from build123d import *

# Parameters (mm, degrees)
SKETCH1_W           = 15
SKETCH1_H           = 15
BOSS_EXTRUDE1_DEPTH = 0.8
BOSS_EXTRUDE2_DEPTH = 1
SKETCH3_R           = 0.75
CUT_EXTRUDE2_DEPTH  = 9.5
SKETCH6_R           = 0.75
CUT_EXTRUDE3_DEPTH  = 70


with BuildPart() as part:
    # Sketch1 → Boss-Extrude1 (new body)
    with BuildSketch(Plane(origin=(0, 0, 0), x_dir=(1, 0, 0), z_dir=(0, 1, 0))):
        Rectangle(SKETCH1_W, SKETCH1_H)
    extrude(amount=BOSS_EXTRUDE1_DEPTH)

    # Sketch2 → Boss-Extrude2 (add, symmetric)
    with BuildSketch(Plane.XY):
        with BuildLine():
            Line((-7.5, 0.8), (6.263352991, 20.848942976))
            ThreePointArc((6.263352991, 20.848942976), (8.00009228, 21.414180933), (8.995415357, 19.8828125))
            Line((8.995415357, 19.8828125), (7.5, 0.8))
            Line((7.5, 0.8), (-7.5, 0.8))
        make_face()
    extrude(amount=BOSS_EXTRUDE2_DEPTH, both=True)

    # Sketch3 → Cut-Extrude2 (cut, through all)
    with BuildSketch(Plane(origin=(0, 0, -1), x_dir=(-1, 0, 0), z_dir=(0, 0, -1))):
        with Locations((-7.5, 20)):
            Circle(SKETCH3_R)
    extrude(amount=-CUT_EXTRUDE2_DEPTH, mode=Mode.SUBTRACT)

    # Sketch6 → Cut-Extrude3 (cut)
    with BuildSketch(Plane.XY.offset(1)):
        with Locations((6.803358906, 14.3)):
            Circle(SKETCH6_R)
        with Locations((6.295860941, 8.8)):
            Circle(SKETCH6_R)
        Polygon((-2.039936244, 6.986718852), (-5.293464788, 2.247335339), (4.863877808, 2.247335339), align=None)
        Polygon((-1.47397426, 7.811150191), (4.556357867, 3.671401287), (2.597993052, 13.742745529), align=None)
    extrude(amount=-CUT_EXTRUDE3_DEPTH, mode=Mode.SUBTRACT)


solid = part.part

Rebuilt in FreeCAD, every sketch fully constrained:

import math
import FreeCAD as App
import Part
import Sketcher
from FreeCAD import Vector

doc = App.newDocument("Part")
body = doc.addObject("PartDesign::Body", "Body")

# Sketch on XZ plane
sketch1 = doc.addObject("Sketcher::SketchObject", "Sketch")
body.addObject(sketch1)
sketch1.AttachmentSupport = (doc.XZ_Plane, [""])
sketch1.MapMode = "FlatFace"
sketch1.addGeometry([
    Part.LineSegment(Vector(-8, -8, 0), Vector(-8, 8, 0)),
    Part.LineSegment(Vector(-8, 8, 0), Vector(8, 8, 0)),
    Part.LineSegment(Vector(8, 8, 0), Vector(8, -8, 0)),
    Part.LineSegment(Vector(8, -8, 0), Vector(-8, -8, 0)),
], False)
sketch1.addConstraint([
    Sketcher.Constraint("Coincident", 0, 2, 1, 1),
    Sketcher.Constraint("Coincident", 1, 2, 2, 1),
    Sketcher.Constraint("Coincident", 2, 2, 3, 1),
    Sketcher.Constraint("Coincident", 3, 2, 0, 1),
    Sketcher.Constraint("Vertical", 0),
    Sketcher.Constraint("Horizontal", 1),
    Sketcher.Constraint("Vertical", 2),
    Sketcher.Constraint("Horizontal", 3),
    Sketcher.Constraint("Symmetric", 0, 2, 2, 2, -1, 1),
    Sketcher.Constraint("Equal", 3, 0),
    Sketcher.Constraint("DistanceX", 1, 1, 1, 2, 15.0),
])
pad1 = doc.addObject("PartDesign::Pad", "Pad")
body.addObject(pad1)
pad1.Profile = sketch1
pad1.Length = 0.8
pad1.Reversed = True

# Sketch on XY plane
sketch2 = doc.addObject("Sketcher::SketchObject", "Sketch001")
body.addObject(sketch2)
sketch2.AttachmentSupport = (doc.XY_Plane, [""])
sketch2.MapMode = "FlatFace"
sketch2.addGeometry([
    Part.LineSegment(Vector(6.3, 20.8, 0), Vector(-7.5, 0.8, 0)),
    Part.LineSegment(Vector(-7.5, 0.8, 0), Vector(7.5, 0.8, 0)),
    Part.LineSegment(Vector(7.5, 0.8, 0), Vector(9, 19.9, 0)),
    Part.ArcOfCircle(Part.Circle(Vector(7.5, 20, 0), Vector(0, 0, 1), 1.5), math.radians(-4), math.radians(146)),
], False)
sketch2.addConstraint([
    Sketcher.Constraint("Coincident", 0, 2, 1, 1),
    Sketcher.Constraint("Coincident", 1, 2, 2, 1),
    Sketcher.Constraint("Tangent", 2, 2, 3, 1),
    Sketcher.Constraint("Tangent", 3, 2, 0, 1),
    Sketcher.Constraint("Horizontal", 1),
    Sketcher.Constraint("Vertical", 3, 3, 1, 2),
    Sketcher.Constraint("Radius", 3, 1.5),
    Sketcher.Constraint("DistanceX", 1, 1, 1, 2, 15.0),
    Sketcher.Constraint("DistanceY", -1, 1, 3, 3, 20.0),
    Sketcher.Constraint("DistanceX", -1, 1, 3, 3, 7.5),
    Sketcher.Constraint("DistanceY", -1, 1, 0, 2, 0.8),
])
pad2 = doc.addObject("PartDesign::Pad", "Pad001")
body.addObject(pad2)
pad2.Profile = sketch2
pad2.Length = 2
pad2.Midplane = True

# Sketch on XY plane
sketch3 = doc.addObject("Sketcher::SketchObject", "Sketch002")
body.addObject(sketch3)
sketch3.AttachmentSupport = (doc.XY_Plane, [""])
sketch3.MapMode = "FlatFace"
sketch3.AttachmentOffset = App.Placement(Vector(0, 0, -1), App.Rotation())
sketch3.addGeometry(Part.Circle(Vector(7.5, 20, 0), Vector(0, 0, 1), 0.8), False)
sketch3.addConstraint([
    Sketcher.Constraint("Diameter", 0, 1.5),
    Sketcher.Constraint("DistanceY", -1, 1, 0, 3, 20.0),
    Sketcher.Constraint("DistanceX", -1, 1, 0, 3, 7.5),
])
pocket1 = doc.addObject("PartDesign::Pocket", "Pocket")
body.addObject(pocket1)
pocket1.Profile = sketch3
pocket1.Type = "ThroughAll"
pocket1.Reversed = True

# Sketch on XY plane
sketch4 = doc.addObject("Sketcher::SketchObject", "Sketch003")
body.addObject(sketch4)
sketch4.AttachmentSupport = (doc.XY_Plane, [""])
sketch4.MapMode = "FlatFace"
sketch4.AttachmentOffset = App.Placement(Vector(0, 0, 1), App.Rotation())
sketch4.addGeometry([
    Part.Circle(Vector(6.8, 14.3, 0), Vector(0, 0, 1), 0.8),  # 0
    Part.Circle(Vector(6.3, 8.8, 0), Vector(0, 0, 1), 0.8),  # 1
    Part.LineSegment(Vector(-2, 7, 0), Vector(-5.3, 2.2, 0)),  # 2
    Part.LineSegment(Vector(-5.3, 2.2, 0), Vector(4.9, 2.2, 0)),  # 3
    Part.LineSegment(Vector(4.9, 2.2, 0), Vector(-2, 7, 0)),  # 4
    Part.LineSegment(Vector(-1.5, 7.8, 0), Vector(4.6, 3.7, 0)),  # 5
    Part.LineSegment(Vector(4.6, 3.7, 0), Vector(2.6, 13.7, 0)),  # 6
    Part.LineSegment(Vector(2.6, 13.7, 0), Vector(-1.5, 7.8, 0)),  # 7
], False)
sketch4.addConstraint([
    Sketcher.Constraint("Coincident", 2, 2, 3, 1),
    Sketcher.Constraint("Coincident", 3, 2, 4, 1),
    Sketcher.Constraint("Coincident", 4, 2, 2, 1),
    Sketcher.Constraint("Coincident", 5, 2, 6, 1),
    Sketcher.Constraint("Coincident", 6, 2, 7, 1),
    Sketcher.Constraint("Coincident", 7, 2, 5, 1),
    Sketcher.Constraint("Horizontal", 3),
    Sketcher.Constraint("Equal", 0, 1),
    Sketcher.Constraint("Perpendicular", 2, 4),
    Sketcher.Constraint("Parallel", 4, 5),
    Sketcher.Constraint("Perpendicular", 5, 7),
    Sketcher.Constraint("Diameter", 0, 1.5),
    Sketcher.Constraint("DistanceY", -1, 1, 0, 3, 14.3),
    Sketcher.Constraint("DistanceY", -1, 1, 1, 3, 8.8),
    Sketcher.Constraint("DistanceX", 5, 2, 0, 3, 2.247001),
    Sketcher.Constraint("DistanceY", -1, 1, 5, 2, 3.671401),
    Sketcher.Constraint("Distance", 2, 5.74867),
    Sketcher.Constraint("Distance", 4, 8.374032),
    Sketcher.Constraint("Distance", 6, 10.259979),
    Sketcher.Constraint("Distance", 7, 7.194772),
    Sketcher.Constraint("DistanceX", -1, 1, 0, 3, 6.803359),
    Sketcher.Constraint("DistanceX", -1, 1, 1, 3, 6.295861),
    Sketcher.Constraint("DistanceY", -1, 1, 4, 2, 6.986719),
    Sketcher.Constraint("DistanceX", 3, 2, 0, 3, 1.939481),
])
pocket2 = doc.addObject("PartDesign::Pocket", "Pocket001")
body.addObject(pocket2)
pocket2.Profile = sketch4
pocket2.Length = 70

doc.recompute()
